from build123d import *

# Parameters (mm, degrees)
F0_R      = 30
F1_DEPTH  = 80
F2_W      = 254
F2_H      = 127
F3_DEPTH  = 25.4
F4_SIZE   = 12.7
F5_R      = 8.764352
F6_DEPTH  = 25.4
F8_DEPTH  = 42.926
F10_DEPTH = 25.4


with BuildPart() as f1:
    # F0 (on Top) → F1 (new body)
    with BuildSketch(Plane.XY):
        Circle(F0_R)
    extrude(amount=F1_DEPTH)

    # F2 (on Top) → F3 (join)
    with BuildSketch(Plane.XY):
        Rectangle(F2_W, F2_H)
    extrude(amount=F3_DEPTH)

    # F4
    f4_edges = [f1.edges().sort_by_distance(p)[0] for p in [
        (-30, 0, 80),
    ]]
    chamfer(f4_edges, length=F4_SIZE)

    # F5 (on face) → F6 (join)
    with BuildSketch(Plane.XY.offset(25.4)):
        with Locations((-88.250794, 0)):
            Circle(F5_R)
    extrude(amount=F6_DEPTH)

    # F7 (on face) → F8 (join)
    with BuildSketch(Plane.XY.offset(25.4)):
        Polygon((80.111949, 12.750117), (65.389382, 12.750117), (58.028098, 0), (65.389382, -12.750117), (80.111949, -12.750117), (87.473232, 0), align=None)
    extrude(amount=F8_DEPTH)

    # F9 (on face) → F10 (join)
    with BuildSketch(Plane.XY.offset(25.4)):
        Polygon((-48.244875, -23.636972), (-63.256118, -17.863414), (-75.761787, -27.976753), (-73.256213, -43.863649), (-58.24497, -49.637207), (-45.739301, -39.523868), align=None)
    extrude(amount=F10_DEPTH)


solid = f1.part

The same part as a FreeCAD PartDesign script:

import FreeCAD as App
import Part
import Sketcher
from FreeCAD import Vector
Q = App.Units.Quantity


def edges_at(feature, points):
    """Names of the edges that pass closest to the given points."""
    edges = feature.Shape.Edges
    near = lambda p: min(range(len(edges)), key=lambda i: edges[i].distToShape(Part.Vertex(*p))[0])
    return sorted({f"Edge{near(p) + 1}" for p in points})

doc = App.newDocument("Part")
body = doc.addObject("PartDesign::Body", "Body")

# Sketch on XY plane
sketch1 = doc.addObject("Sketcher::SketchObject", "Sketch")
body.addObject(sketch1)
sketch1.AttachmentSupport = (doc.XY_Plane, [""])
sketch1.MapMode = "FlatFace"
sketch1.addGeometry(Part.Circle(Vector(0, 0, 0), Vector(0, 0, 1), 30), False)
sketch1.addConstraint([
    Sketcher.Constraint("Coincident", 0, 3, -1, 1),
    Sketcher.Constraint("Diameter", 0, 60.0),
])
pad1 = doc.addObject("PartDesign::Pad", "Pad")
body.addObject(pad1)
pad1.Profile = sketch1
pad1.Length = 80

# Sketch on XY plane
sketch2 = doc.addObject("Sketcher::SketchObject", "Sketch001")
body.addObject(sketch2)
sketch2.AttachmentSupport = (doc.XY_Plane, [""])
sketch2.MapMode = "FlatFace"
sketch2.addGeometry([
    Part.LineSegment(Vector(-127, 64, 0), Vector(-127, -64, 0)),
    Part.LineSegment(Vector(-127, -64, 0), Vector(127, -64, 0)),
    Part.LineSegment(Vector(127, -64, 0), Vector(127, 64, 0)),
    Part.LineSegment(Vector(127, 64, 0), Vector(-127, 64, 0)),
], False)
sketch2.addConstraint([
    Sketcher.Constraint("Coincident", 0, 2, 1, 1),
    Sketcher.Constraint("Coincident", 1, 2, 2, 1),
    Sketcher.Constraint("Coincident", 2, 2, 3, 1),
    Sketcher.Constraint("Coincident", 3, 2, 0, 1),
    Sketcher.Constraint("Vertical", 0),
    Sketcher.Constraint("Horizontal", 1),
    Sketcher.Constraint("Vertical", 2),
    Sketcher.Constraint("Horizontal", 3),
    Sketcher.Constraint("Symmetric", 0, 2, 2, 2, -1, 1),
    Sketcher.Constraint("DistanceX", 1, 1, 1, 2, Q("10 in")),
    Sketcher.Constraint("DistanceY", 0, 2, 0, 1, Q("5 in")),
])
pad2 = doc.addObject("PartDesign::Pad", "Pad001")
body.addObject(pad2)
pad2.Profile = sketch2
pad2.Length = Q("1 in")
doc.recompute()

chamfer = doc.addObject("PartDesign::Chamfer", "Chamfer")
body.addObject(chamfer)
chamfer.Base = (pad2, edges_at(pad2, [(-30, 0, 80)]))
chamfer.Size = Q("0.5 in")

# Sketch on XY plane
sketch3 = doc.addObject("Sketcher::SketchObject", "Sketch002")
body.addObject(sketch3)
sketch3.AttachmentSupport = (doc.XY_Plane, [""])
sketch3.MapMode = "FlatFace"
sketch3.AttachmentOffset = App.Placement(Vector(0, 0, 1 * 25.4), App.Rotation())
sketch3.addGeometry(Part.Circle(Vector(-88, 0, 0), Vector(0, 0, 1), 9), False)
sketch3.addConstraint([
    Sketcher.Constraint("PointOnObject", 0, 3, -1),
    Sketcher.Constraint("Diameter", 0, 17.528704),
    Sketcher.Constraint("DistanceX", 0, 3, -1, 1, 88.250794),
])
pad3 = doc.addObject("PartDesign::Pad", "Pad002")
body.addObject(pad3)
pad3.Profile = sketch3
pad3.Length = Q("1 in")

# Sketch on XY plane
sketch4 = doc.addObject("Sketcher::SketchObject", "Sketch003")
body.addObject(sketch4)
sketch4.AttachmentSupport = (doc.XY_Plane, [""])
sketch4.MapMode = "FlatFace"
sketch4.AttachmentOffset = App.Placement(Vector(0, 0, 1 * 25.4), App.Rotation())
sketch4.addGeometry([
    Part.LineSegment(Vector(80, 13, 0), Vector(65, 13, 0)),  # 0
    Part.LineSegment(Vector(65, 13, 0), Vector(58, 0, 0)),  # 1
    Part.LineSegment(Vector(58, 0, 0), Vector(65, -13, 0)),  # 2
    Part.LineSegment(Vector(65, -13, 0), Vector(80, -13, 0)),  # 3
    Part.LineSegment(Vector(80, -13, 0), Vector(87, 0, 0)),  # 4
    Part.LineSegment(Vector(87, 0, 0), Vector(80, 13, 0)),  # 5
], False)
sketch4.addConstraint([
    Sketcher.Constraint("Coincident", 0, 2, 1, 1),
    Sketcher.Constraint("Coincident", 1, 2, 2, 1),
    Sketcher.Constraint("Coincident", 2, 2, 3, 1),
    Sketcher.Constraint("Coincident", 3, 2, 4, 1),
    Sketcher.Constraint("Coincident", 4, 2, 5, 1),
    Sketcher.Constraint("Coincident", 5, 2, 0, 1),
    Sketcher.Constraint("Horizontal", 0),
    Sketcher.Constraint("Horizontal", 3),
    Sketcher.Constraint("Symmetric", 0, 2, 2, 2, -1),
    Sketcher.Constraint("PointOnObject", 1, 2, -1),
    Sketcher.Constraint("PointOnObject", 4, 2, -1),
    Sketcher.Constraint("Parallel", 1, 4),
    Sketcher.Constraint("Parallel", 2, 5),
    Sketcher.Constraint("Angle", 1, Q("-120.000002 deg")),
    Sketcher.Constraint("DistanceX", 0, 2, 0, 1, 14.722567),
    Sketcher.Constraint("DistanceX", -1, 1, 0, 2, 65.389382),
    Sketcher.Constraint("DistanceX", -1, 1, 4, 2, 87.473232),
])
pad4 = doc.addObject("PartDesign::Pad", "Pad003")
body.addObject(pad4)
pad4.Profile = sketch4
pad4.Length = Q("1.69 in")

# Sketch on XY plane
sketch5 = doc.addObject("Sketcher::SketchObject", "Sketch004")
body.addObject(sketch5)
sketch5.AttachmentSupport = (doc.XY_Plane, [""])
sketch5.MapMode = "FlatFace"
sketch5.AttachmentOffset = App.Placement(Vector(0, 0, 1 * 25.4), App.Rotation())
sketch5.addGeometry([
    Part.LineSegment(Vector(-48, -24, 0), Vector(-63, -18, 0)),  # 0
    Part.LineSegment(Vector(-63, -18, 0), Vector(-76, -28, 0)),  # 1
    Part.LineSegment(Vector(-76, -28, 0), Vector(-73, -44, 0)),  # 2
    Part.LineSegment(Vector(-73, -44, 0), Vector(-58, -50, 0)),  # 3
    Part.LineSegment(Vector(-58, -50, 0), Vector(-46, -40, 0)),  # 4
    Part.LineSegment(Vector(-46, -40, 0), Vector(-48, -24, 0)),  # 5
], False)
sketch5.addConstraint([
    Sketcher.Constraint("Coincident", 0, 2, 1, 1),
    Sketcher.Constraint("Coincident", 1, 2, 2, 1),
    Sketcher.Constraint("Coincident", 2, 2, 3, 1),
    Sketcher.Constraint("Coincident", 3, 2, 4, 1),
    Sketcher.Constraint("Coincident", 4, 2, 5, 1),
    Sketcher.Constraint("Coincident", 5, 2, 0, 1),
    Sketcher.Constraint("Parallel", 0, 3),
    Sketcher.Constraint("Parallel", 1, 4),
    Sketcher.Constraint("Parallel", 2, 5),
    Sketcher.Constraint("Equal", 0, 1),
    Sketcher.Constraint("Equal", 1, 2),
    Sketcher.Constraint("Equal", 2, 3),
    Sketcher.Constraint("DistanceX", 4, 2, -1, 1, 45.739301),
    Sketcher.Constraint("DistanceY", 2, 2, -1, 1, 43.863649),
    Sketcher.Constraint("DistanceX", 3, 2, -1, 1, 58.24497),
    Sketcher.Constraint("DistanceY", 5, 2, -1, 1, 23.636972),
    Sketcher.Constraint("DistanceY", 1, 2, 0, 2, 10.113339),
    Sketcher.Constraint("DistanceY", 2, 2, 4, 2, 4.339781),
])
pad5 = doc.addObject("PartDesign::Pad", "Pad004")
body.addObject(pad5)
pad5.Profile = sketch5
pad5.Length = Q("1 in")

doc.recompute()
